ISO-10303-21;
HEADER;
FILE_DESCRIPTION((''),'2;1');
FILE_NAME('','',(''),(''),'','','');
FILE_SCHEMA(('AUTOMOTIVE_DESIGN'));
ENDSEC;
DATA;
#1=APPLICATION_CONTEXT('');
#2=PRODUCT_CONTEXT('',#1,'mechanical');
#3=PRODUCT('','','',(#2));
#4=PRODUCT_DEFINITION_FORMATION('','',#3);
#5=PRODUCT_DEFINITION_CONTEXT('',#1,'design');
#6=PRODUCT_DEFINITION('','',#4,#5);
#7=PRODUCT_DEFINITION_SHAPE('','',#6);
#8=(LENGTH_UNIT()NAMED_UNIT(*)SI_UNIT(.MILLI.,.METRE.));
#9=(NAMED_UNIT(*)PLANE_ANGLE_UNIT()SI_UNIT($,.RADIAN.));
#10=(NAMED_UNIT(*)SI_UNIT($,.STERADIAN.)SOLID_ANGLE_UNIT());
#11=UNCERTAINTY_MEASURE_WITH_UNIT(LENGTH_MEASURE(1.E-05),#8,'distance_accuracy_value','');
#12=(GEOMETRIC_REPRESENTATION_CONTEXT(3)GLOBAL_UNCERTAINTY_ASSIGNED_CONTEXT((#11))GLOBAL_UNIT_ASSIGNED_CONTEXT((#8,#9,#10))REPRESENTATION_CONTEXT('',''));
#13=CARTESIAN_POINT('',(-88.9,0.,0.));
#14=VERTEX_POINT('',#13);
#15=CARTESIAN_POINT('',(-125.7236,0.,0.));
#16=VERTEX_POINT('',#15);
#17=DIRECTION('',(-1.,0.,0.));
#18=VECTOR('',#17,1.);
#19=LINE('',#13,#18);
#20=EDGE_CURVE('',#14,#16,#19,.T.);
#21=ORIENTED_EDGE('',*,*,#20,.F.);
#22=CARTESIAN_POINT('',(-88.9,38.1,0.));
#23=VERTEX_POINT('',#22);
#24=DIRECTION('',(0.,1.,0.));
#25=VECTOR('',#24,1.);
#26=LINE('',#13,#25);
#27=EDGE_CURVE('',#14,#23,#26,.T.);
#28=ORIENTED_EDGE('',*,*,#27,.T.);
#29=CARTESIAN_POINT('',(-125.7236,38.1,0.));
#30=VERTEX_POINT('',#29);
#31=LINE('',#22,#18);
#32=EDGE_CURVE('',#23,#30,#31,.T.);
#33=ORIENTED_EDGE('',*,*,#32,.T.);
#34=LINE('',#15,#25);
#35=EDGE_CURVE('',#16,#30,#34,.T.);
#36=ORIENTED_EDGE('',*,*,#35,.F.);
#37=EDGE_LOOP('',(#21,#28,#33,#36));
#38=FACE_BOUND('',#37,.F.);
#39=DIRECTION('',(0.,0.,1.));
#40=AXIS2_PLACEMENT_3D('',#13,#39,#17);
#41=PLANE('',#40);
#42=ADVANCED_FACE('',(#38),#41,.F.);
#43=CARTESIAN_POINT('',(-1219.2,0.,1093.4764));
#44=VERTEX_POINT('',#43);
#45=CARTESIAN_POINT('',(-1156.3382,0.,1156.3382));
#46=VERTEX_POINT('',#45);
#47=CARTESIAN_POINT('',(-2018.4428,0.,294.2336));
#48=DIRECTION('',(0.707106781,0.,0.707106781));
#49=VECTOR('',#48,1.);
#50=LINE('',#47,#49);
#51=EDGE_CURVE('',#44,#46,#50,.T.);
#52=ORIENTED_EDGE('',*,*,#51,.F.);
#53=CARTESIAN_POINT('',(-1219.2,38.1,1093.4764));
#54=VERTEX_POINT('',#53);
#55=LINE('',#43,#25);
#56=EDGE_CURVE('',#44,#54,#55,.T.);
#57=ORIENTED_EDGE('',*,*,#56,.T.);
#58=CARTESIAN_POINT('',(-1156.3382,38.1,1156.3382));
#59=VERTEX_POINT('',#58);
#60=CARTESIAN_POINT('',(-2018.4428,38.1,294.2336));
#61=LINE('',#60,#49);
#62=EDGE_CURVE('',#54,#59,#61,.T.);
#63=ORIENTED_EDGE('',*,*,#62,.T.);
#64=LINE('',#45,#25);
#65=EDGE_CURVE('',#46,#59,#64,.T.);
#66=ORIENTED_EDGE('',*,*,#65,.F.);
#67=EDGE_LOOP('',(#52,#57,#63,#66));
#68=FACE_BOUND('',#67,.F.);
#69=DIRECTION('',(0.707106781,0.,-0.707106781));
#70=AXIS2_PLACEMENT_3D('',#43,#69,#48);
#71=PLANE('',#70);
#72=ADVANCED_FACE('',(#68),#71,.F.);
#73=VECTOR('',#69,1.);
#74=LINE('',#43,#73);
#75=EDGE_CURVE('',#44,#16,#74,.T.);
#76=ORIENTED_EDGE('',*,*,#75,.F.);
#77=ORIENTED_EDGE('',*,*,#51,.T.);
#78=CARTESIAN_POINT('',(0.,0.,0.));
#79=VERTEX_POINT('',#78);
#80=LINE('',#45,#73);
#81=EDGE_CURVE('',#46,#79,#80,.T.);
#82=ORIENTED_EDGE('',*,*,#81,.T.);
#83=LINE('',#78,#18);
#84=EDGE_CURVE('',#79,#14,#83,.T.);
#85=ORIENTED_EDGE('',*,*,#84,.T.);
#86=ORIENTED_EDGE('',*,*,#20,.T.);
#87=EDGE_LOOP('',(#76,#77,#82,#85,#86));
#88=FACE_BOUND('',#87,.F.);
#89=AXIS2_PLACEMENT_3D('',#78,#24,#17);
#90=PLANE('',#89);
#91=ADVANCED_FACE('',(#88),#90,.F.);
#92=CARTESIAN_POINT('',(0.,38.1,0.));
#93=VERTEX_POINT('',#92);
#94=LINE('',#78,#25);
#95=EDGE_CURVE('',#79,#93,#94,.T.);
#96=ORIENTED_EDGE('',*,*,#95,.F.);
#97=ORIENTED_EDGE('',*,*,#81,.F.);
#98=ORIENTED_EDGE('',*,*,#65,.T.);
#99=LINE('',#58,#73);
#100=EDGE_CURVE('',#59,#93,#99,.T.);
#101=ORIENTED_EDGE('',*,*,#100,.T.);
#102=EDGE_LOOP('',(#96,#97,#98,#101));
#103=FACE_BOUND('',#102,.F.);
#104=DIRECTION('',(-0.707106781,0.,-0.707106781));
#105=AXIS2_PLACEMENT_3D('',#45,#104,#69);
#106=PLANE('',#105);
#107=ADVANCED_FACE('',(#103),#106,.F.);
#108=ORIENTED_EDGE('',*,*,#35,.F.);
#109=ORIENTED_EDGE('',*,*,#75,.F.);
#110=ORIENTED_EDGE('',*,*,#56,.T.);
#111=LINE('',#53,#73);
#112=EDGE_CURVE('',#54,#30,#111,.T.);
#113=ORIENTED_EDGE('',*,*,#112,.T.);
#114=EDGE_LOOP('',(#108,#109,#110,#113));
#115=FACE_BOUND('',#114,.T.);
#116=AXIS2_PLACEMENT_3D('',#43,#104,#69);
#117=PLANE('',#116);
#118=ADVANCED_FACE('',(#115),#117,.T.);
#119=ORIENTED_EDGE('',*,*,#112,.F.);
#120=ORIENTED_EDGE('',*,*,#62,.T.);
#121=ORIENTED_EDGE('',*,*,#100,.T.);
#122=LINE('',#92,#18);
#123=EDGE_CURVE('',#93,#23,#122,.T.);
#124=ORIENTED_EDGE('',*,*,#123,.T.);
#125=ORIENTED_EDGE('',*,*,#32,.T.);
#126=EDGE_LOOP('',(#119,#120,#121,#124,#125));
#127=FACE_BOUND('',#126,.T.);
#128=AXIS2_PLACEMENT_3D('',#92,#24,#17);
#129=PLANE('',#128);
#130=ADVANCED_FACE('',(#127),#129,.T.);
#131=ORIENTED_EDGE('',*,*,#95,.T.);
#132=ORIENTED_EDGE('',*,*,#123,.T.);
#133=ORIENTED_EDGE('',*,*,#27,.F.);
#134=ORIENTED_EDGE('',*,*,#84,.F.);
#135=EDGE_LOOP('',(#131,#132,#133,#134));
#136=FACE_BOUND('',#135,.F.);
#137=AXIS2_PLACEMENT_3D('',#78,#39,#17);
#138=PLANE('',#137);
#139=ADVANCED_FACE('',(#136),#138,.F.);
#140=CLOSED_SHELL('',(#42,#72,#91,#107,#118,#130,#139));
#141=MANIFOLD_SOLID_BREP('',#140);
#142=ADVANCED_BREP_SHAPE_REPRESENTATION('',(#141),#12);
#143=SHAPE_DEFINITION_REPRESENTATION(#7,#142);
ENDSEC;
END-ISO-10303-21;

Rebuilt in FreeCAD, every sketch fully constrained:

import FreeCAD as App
import Part
import Sketcher
Q = App.Units.Quantity

doc = App.newDocument("Part")
params = doc.addObject("Spreadsheet::Sheet", "Params")
for row, (alias, value) in enumerate([
    ("sketch1_length", "3.5 in"),
    ("pad1_length", "1.5 in"),
], start=1):
    params.set(f"A{row}", alias)
    params.set(f"B{row}", "=" + value)
    params.setAlias(f"B{row}", alias)

body = doc.addObject("PartDesign::Body", "Body")

# Sketch on XZ plane
sketch1 = doc.addObject("Sketcher::SketchObject", "Sketch")
body.addObject(sketch1)
sketch1.AttachmentSupport = (doc.XZ_Plane, [""])
sketch1.MapMode = "FlatFace"
sketch1.addGeometry([
    Part.LineSegment(App.Vector(-1156, 1156, 0), App.Vector(0, 0, 0)),
    Part.LineSegment(App.Vector(0, 0, 0), App.Vector(-126, 0, 0)),
    Part.LineSegment(App.Vector(-126, 0, 0), App.Vector(-1219, 1093, 0)),
    Part.LineSegment(App.Vector(-1219, 1093, 0), App.Vector(-1156, 1156, 0)),
], False)
sketch1.addConstraint([
    Sketcher.Constraint("Coincident", 0, 2, 1, 1),
    Sketcher.Constraint("Coincident", 1, 2, 2, 1),
    Sketcher.Constraint("Coincident", 2, 2, 3, 1),
    Sketcher.Constraint("Coincident", 3, 2, 0, 1),
    Sketcher.Constraint("Horizontal", 1),
    Sketcher.Constraint("Coincident", 0, 2, -1, 1),
    Sketcher.Constraint("Parallel", 0, 2),
    Sketcher.Constraint("Perpendicular", 2, 3),
    Sketcher.Constraint("DistanceX", 2, 2, -1, 1, Q("48 in")),
    Sketcher.Constraint("Angle", 0, Q("-45 deg")),
    Sketcher.Constraint("Distance", 3, Q("3.5 in")),
])
sketch1.setExpression("Constraints[10]", "Params.sketch1_length")
pad1 = doc.addObject("PartDesign::Pad", "Pad")
body.addObject(pad1)
pad1.Profile = sketch1
pad1.setExpression("Length", "Params.pad1_length")
pad1.Reversed = True

doc.recompute()
